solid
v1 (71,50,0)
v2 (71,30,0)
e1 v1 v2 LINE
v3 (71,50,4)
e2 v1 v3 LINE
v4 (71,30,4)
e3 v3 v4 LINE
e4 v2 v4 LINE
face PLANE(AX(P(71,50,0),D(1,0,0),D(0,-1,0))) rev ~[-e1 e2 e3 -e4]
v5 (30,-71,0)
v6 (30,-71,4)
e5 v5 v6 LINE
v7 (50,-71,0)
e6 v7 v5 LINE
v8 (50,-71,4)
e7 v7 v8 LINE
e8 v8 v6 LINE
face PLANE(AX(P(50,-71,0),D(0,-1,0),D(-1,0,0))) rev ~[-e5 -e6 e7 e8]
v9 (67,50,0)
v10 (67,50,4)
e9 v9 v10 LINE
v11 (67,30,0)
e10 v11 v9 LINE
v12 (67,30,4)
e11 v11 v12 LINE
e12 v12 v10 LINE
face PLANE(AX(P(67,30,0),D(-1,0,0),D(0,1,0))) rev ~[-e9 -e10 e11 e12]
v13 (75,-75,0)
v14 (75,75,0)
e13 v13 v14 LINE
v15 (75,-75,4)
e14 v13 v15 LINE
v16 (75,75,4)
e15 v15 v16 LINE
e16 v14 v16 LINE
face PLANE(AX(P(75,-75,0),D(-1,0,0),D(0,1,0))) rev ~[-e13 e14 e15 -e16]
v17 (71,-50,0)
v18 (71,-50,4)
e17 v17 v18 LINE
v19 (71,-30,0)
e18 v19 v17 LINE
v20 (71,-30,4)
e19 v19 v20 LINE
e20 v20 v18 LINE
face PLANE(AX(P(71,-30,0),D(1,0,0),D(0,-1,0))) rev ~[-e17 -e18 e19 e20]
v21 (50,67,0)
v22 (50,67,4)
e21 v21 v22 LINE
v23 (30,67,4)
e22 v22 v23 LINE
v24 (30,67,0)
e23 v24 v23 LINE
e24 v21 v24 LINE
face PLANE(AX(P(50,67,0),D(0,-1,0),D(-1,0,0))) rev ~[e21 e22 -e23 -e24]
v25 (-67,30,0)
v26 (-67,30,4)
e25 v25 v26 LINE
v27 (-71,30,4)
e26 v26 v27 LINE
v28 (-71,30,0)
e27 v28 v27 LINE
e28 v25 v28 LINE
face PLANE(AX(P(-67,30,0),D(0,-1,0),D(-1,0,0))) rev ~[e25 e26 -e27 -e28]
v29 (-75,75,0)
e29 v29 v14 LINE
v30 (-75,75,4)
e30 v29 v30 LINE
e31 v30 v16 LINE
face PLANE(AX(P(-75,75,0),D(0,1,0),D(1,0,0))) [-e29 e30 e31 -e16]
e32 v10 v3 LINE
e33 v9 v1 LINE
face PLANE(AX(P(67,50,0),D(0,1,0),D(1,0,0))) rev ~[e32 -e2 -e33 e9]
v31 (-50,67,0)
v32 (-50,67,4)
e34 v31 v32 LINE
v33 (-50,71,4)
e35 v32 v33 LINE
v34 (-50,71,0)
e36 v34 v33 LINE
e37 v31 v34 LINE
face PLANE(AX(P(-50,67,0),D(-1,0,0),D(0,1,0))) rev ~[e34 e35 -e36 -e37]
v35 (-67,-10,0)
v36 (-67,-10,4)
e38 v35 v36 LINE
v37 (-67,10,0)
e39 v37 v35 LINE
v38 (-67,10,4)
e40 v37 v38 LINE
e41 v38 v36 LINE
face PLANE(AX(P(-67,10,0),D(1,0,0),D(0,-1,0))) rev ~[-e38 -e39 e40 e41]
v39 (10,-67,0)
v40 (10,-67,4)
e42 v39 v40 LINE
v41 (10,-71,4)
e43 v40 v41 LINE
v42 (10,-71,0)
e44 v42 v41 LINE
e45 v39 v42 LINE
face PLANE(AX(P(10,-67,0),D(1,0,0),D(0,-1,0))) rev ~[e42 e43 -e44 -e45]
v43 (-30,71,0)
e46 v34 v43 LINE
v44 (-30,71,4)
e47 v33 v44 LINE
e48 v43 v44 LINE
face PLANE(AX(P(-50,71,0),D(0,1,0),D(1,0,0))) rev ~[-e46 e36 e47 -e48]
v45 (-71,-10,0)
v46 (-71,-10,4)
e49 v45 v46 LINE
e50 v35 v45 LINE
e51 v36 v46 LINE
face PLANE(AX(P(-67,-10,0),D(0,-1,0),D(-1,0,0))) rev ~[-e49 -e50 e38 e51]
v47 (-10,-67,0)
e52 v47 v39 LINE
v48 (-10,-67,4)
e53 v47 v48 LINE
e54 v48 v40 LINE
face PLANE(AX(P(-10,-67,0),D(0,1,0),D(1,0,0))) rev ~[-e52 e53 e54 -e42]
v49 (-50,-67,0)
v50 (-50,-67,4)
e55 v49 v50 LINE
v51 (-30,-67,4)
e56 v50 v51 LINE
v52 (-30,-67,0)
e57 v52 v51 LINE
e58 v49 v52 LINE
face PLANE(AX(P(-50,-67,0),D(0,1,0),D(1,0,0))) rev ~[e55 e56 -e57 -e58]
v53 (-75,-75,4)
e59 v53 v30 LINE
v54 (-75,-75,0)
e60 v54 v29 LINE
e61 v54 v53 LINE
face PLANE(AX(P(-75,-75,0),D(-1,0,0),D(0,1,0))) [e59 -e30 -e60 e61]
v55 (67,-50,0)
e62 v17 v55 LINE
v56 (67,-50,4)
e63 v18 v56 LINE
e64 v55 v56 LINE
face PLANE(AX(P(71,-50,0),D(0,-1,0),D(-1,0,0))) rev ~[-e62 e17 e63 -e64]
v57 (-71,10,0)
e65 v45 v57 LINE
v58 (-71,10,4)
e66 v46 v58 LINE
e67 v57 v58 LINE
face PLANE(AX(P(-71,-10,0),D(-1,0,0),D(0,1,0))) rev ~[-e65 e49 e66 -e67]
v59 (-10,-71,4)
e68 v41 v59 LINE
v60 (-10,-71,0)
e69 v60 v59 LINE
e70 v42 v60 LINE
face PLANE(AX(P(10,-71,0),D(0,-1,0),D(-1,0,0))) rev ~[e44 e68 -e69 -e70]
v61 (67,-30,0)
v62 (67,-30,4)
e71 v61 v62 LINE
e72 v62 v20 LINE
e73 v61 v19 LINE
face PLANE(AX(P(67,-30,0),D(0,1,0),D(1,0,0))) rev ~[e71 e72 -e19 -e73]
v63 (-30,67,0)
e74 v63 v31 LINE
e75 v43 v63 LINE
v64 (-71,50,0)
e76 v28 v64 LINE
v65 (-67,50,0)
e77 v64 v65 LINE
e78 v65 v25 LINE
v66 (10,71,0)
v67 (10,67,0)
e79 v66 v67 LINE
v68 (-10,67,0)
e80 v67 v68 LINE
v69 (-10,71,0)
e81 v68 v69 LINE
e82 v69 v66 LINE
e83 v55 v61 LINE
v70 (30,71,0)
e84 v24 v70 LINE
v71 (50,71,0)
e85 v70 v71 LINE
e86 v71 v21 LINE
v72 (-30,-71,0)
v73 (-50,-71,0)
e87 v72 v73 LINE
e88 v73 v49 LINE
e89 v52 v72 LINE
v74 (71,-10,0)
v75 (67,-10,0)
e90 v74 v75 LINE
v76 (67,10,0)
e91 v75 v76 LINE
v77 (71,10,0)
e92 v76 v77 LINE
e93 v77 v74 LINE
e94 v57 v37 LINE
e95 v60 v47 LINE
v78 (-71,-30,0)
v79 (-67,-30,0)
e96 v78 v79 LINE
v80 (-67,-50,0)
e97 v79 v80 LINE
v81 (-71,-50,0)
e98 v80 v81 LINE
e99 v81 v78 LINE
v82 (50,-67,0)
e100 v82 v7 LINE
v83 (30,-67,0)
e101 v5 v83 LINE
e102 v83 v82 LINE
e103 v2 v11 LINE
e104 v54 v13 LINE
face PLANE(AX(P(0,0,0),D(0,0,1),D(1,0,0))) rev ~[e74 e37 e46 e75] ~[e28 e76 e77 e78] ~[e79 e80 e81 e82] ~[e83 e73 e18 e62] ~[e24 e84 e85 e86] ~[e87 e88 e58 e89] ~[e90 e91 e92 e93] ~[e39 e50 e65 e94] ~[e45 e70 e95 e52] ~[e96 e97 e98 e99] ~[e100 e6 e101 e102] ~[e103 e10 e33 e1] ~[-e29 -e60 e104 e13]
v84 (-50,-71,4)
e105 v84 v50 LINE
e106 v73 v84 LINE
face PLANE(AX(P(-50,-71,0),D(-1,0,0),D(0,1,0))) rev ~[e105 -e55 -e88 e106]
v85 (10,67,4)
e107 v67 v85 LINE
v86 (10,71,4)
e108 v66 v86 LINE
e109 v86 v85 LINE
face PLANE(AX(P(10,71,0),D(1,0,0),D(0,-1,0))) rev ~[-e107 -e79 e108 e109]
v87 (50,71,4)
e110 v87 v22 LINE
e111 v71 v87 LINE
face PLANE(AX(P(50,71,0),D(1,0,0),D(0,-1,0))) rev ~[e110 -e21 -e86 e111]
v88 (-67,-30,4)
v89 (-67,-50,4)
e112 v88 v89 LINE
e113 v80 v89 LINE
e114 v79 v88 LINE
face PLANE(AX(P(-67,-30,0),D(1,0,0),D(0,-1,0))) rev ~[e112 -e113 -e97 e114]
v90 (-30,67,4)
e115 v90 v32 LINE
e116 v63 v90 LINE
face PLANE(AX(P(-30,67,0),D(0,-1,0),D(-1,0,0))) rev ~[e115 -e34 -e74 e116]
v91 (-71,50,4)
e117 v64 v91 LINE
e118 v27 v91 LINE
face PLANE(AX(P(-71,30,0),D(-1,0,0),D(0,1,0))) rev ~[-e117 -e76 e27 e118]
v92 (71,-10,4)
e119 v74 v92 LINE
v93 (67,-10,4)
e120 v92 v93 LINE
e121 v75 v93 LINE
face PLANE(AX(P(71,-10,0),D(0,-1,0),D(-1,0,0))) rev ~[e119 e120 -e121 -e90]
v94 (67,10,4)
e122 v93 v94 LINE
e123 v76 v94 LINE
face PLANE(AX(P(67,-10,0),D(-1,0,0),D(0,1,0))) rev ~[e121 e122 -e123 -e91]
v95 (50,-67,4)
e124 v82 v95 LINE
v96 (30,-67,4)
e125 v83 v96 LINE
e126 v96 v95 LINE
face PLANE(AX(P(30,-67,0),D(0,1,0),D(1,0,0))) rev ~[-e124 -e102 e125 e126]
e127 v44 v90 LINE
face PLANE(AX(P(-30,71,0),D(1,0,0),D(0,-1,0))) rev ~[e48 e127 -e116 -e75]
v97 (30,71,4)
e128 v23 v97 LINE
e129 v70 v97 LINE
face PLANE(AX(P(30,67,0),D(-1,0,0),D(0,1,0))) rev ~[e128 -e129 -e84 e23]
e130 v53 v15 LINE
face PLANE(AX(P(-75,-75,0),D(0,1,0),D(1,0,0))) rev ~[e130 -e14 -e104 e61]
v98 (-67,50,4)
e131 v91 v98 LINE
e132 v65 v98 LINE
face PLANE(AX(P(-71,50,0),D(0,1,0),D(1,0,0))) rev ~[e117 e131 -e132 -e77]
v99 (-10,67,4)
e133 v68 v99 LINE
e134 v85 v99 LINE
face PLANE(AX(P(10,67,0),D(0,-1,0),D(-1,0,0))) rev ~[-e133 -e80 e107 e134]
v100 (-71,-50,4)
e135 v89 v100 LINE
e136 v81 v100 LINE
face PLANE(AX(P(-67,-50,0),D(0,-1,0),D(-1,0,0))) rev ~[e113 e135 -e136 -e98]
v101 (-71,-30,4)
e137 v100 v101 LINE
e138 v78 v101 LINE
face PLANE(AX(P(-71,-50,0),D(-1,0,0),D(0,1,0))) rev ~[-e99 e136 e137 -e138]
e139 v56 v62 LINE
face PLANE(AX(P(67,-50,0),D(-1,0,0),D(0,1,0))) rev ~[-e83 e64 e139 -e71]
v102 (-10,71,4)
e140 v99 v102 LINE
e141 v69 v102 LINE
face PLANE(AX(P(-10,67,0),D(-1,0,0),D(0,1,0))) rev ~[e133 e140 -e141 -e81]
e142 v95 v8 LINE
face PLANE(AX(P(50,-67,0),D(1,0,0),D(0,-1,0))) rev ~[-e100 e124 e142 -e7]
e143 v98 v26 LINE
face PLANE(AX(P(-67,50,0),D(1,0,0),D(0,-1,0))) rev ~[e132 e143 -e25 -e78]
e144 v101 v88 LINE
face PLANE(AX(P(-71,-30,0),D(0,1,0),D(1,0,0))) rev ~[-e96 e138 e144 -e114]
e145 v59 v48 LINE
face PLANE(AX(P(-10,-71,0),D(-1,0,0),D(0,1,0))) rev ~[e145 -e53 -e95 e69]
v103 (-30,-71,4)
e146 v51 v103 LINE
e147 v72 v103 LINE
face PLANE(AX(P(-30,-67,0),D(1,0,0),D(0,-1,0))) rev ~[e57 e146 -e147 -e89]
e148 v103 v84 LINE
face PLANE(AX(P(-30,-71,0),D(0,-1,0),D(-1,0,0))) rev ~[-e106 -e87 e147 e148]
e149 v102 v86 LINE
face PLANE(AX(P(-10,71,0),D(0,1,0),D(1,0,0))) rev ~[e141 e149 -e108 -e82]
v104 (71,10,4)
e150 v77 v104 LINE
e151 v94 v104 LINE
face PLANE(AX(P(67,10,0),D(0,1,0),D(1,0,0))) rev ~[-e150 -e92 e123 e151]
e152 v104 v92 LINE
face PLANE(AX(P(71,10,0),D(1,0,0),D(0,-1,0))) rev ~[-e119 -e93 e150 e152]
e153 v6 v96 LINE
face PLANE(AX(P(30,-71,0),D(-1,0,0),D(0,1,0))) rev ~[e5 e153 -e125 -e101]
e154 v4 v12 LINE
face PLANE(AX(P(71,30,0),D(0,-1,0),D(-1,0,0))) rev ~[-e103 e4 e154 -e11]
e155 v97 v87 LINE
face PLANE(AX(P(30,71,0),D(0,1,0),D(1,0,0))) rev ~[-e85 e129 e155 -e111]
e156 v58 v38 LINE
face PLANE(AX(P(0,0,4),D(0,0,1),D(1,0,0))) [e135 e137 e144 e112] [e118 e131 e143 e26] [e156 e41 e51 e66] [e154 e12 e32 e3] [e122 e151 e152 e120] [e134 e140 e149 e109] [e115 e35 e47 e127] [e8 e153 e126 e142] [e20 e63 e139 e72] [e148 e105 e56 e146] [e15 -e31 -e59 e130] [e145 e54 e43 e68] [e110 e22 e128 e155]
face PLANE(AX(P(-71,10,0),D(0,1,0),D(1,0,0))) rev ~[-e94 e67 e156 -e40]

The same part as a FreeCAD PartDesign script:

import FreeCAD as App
import Part
import Sketcher
from FreeCAD import Vector
Q = App.Units.Quantity

doc = App.newDocument("Part")
body = doc.addObject("PartDesign::Body", "Body")

sketch1 = body.newObject("Sketcher::SketchObject", "Sketch")
sketch1.AttachmentSupport = (doc.getObject("XY_Plane"), [""])
sketch1.MapMode = "FlatFace"
sketch1.addGeometry(Part.LineSegment(Vector(-75, 75, 0), Vector(-75, -75, 0)), False)
sketch1.addGeometry(Part.LineSegment(Vector(-75, -75, 0), Vector(75, -75, 0)), False)
sketch1.addGeometry(Part.LineSegment(Vector(75, -75, 0), Vector(75, 75, 0)), False)
sketch1.addGeometry(Part.LineSegment(Vector(75, 75, 0), Vector(-75, 75, 0)), False)
sketch1.addGeometry(Part.LineSegment(Vector(-30, -67, 0), Vector(-30, -71, 0)), False)
sketch1.addGeometry(Part.LineSegment(Vector(-30, -71, 0), Vector(-50, -71, 0)), False)
sketch1.addGeometry(Part.LineSegment(Vector(-50, -71, 0), Vector(-50, -67, 0)), False)
sketch1.addGeometry(Part.LineSegment(Vector(-50, -67, 0), Vector(-30, -67, 0)), False)
sketch1.addGeometry(Part.LineSegment(Vector(-71, -50, 0), Vector(-71, -30, 0)), False)
sketch1.addGeometry(Part.LineSegment(Vector(-71, -30, 0), Vector(-67, -30, 0)), False)
sketch1.addGeometry(Part.LineSegment(Vector(-67, -30, 0), Vector(-67, -50, 0)), False)
sketch1.addGeometry(Part.LineSegment(Vector(-67, -50, 0), Vector(-71, -50, 0)), False)
sketch1.addGeometry(Part.LineSegment(Vector(10, -71, 0), Vector(-10, -71, 0)), False)
sketch1.addGeometry(Part.LineSegment(Vector(-10, -71, 0), Vector(-10, -67, 0)), False)
sketch1.addGeometry(Part.LineSegment(Vector(-10, -67, 0), Vector(10, -67, 0)), False)
sketch1.addGeometry(Part.LineSegment(Vector(10, -67, 0), Vector(10, -71, 0)), False)
sketch1.addGeometry(Part.LineSegment(Vector(50, -67, 0), Vector(50, -71, 0)), False)
sketch1.addGeometry(Part.LineSegment(Vector(50, -71, 0), Vector(30, -71, 0)), False)
sketch1.addGeometry(Part.LineSegment(Vector(30, -71, 0), Vector(30, -67, 0)), False)
sketch1.addGeometry(Part.LineSegment(Vector(30, -67, 0), Vector(50, -67, 0)), False)
sketch1.addGeometry(Part.LineSegment(Vector(71, -30, 0), Vector(71, -50, 0)), False)
sketch1.addGeometry(Part.LineSegment(Vector(71, -50, 0), Vector(67, -50, 0)), False)
sketch1.addGeometry(Part.LineSegment(Vector(67, -50, 0), Vector(67, -30, 0)), False)
sketch1.addGeometry(Part.LineSegment(Vector(67, -30, 0), Vector(71, -30, 0)), False)
sketch1.addGeometry(Part.LineSegment(Vector(-67, -10, 0), Vector(-71, -10, 0)), False)
sketch1.addGeometry(Part.LineSegment(Vector(-71, -10, 0), Vector(-71, 10, 0)), False)
sketch1.addGeometry(Part.LineSegment(Vector(-71, 10, 0), Vector(-67, 10, 0)), False)
sketch1.addGeometry(Part.LineSegment(Vector(-67, 10, 0), Vector(-67, -10, 0)), False)
sketch1.addGeometry(Part.LineSegment(Vector(-71, 30, 0), Vector(-71, 50, 0)), False)
sketch1.addGeometry(Part.LineSegment(Vector(-71, 50, 0), Vector(-67, 50, 0)), False)
sketch1.addGeometry(Part.LineSegment(Vector(-67, 50, 0), Vector(-67, 30, 0)), False)
sketch1.addGeometry(Part.LineSegment(Vector(-67, 30, 0), Vector(-71, 30, 0)), False)
sketch1.addGeometry(Part.LineSegment(Vector(-50, 71, 0), Vector(-30, 71, 0)), False)
sketch1.addGeometry(Part.LineSegment(Vector(-30, 71, 0), Vector(-30, 67, 0)), False)
sketch1.addGeometry(Part.LineSegment(Vector(-30, 67, 0), Vector(-50, 67, 0)), False)
sketch1.addGeometry(Part.LineSegment(Vector(-50, 67, 0), Vector(-50, 71, 0)), False)
sketch1.addGeometry(Part.LineSegment(Vector(71, 10, 0), Vector(71, -10, 0)), False)
sketch1.addGeometry(Part.LineSegment(Vector(71, -10, 0), Vector(67, -10, 0)), False)
sketch1.addGeometry(Part.LineSegment(Vector(67, -10, 0), Vector(67, 10, 0)), False)
sketch1.addGeometry(Part.LineSegment(Vector(67, 10, 0), Vector(71, 10, 0)), False)
sketch1.addGeometry(Part.LineSegment(Vector(-10, 67, 0), Vector(-10, 71, 0)), False)
sketch1.addGeometry(Part.LineSegment(Vector(-10, 71, 0), Vector(10, 71, 0)), False)
sketch1.addGeometry(Part.LineSegment(Vector(10, 71, 0), Vector(10, 67, 0)), False)
sketch1.addGeometry(Part.LineSegment(Vector(10, 67, 0), Vector(-10, 67, 0)), False)
sketch1.addGeometry(Part.LineSegment(Vector(71, 50, 0), Vector(71, 30, 0)), False)
sketch1.addGeometry(Part.LineSegment(Vector(71, 30, 0), Vector(67, 30, 0)), False)
sketch1.addGeometry(Part.LineSegment(Vector(67, 30, 0), Vector(67, 50, 0)), False)
sketch1.addGeometry(Part.LineSegment(Vector(67, 50, 0), Vector(71, 50, 0)), False)
sketch1.addGeometry(Part.LineSegment(Vector(30, 67, 0), Vector(30, 71, 0)), False)
sketch1.addGeometry(Part.LineSegment(Vector(30, 71, 0), Vector(50, 71, 0)), False)
sketch1.addGeometry(Part.LineSegment(Vector(50, 71, 0), Vector(50, 67, 0)), False)
sketch1.addGeometry(Part.LineSegment(Vector(50, 67, 0), Vector(30, 67, 0)), False)
sketch1.addConstraint(Sketcher.Constraint("Coincident", 0, 2, 1, 1))
sketch1.addConstraint(Sketcher.Constraint("Coincident", 1, 2, 2, 1))
sketch1.addConstraint(Sketcher.Constraint("Coincident", 2, 2, 3, 1))
sketch1.addConstraint(Sketcher.Constraint("Coincident", 3, 2, 0, 1))
sketch1.addConstraint(Sketcher.Constraint("Coincident", 4, 2, 5, 1))
sketch1.addConstraint(Sketcher.Constraint("Coincident", 5, 2, 6, 1))
sketch1.addConstraint(Sketcher.Constraint("Coincident", 6, 2, 7, 1))
sketch1.addConstraint(Sketcher.Constraint("Coincident", 7, 2, 4, 1))
sketch1.addConstraint(Sketcher.Constraint("Coincident", 8, 2, 9, 1))
sketch1.addConstraint(Sketcher.Constraint("Coincident", 9, 2, 10, 1))
sketch1.addConstraint(Sketcher.Constraint("Coincident", 10, 2, 11, 1))
sketch1.addConstraint(Sketcher.Constraint("Coincident", 11, 2, 8, 1))
sketch1.addConstraint(Sketcher.Constraint("Coincident", 12, 2, 13, 1))
sketch1.addConstraint(Sketcher.Constraint("Coincident", 13, 2, 14, 1))
sketch1.addConstraint(Sketcher.Constraint("Coincident", 14, 2, 15, 1))
sketch1.addConstraint(Sketcher.Constraint("Coincident", 15, 2, 12, 1))
sketch1.addConstraint(Sketcher.Constraint("Coincident", 16, 2, 17, 1))
sketch1.addConstraint(Sketcher.Constraint("Coincident", 17, 2, 18, 1))
sketch1.addConstraint(Sketcher.Constraint("Coincident", 18, 2, 19, 1))
sketch1.addConstraint(Sketcher.Constraint("Coincident", 19, 2, 16, 1))
sketch1.addConstraint(Sketcher.Constraint("Coincident", 20, 2, 21, 1))
sketch1.addConstraint(Sketcher.Constraint("Coincident", 21, 2, 22, 1))
sketch1.addConstraint(Sketcher.Constraint("Coincident", 22, 2, 23, 1))
sketch1.addConstraint(Sketcher.Constraint("Coincident", 23, 2, 20, 1))
sketch1.addConstraint(Sketcher.Constraint("Coincident", 24, 2, 25, 1))
sketch1.addConstraint(Sketcher.Constraint("Coincident", 25, 2, 26, 1))
sketch1.addConstraint(Sketcher.Constraint("Coincident", 26, 2, 27, 1))
sketch1.addConstraint(Sketcher.Constraint("Coincident", 27, 2, 24, 1))
sketch1.addConstraint(Sketcher.Constraint("Coincident", 28, 2, 29, 1))
sketch1.addConstraint(Sketcher.Constraint("Coincident", 29, 2, 30, 1))
sketch1.addConstraint(Sketcher.Constraint("Coincident", 30, 2, 31, 1))
sketch1.addConstraint(Sketcher.Constraint("Coincident", 31, 2, 28, 1))
sketch1.addConstraint(Sketcher.Constraint("Coincident", 32, 2, 33, 1))
sketch1.addConstraint(Sketcher.Constraint("Coincident", 33, 2, 34, 1))
sketch1.addConstraint(Sketcher.Constraint("Coincident", 34, 2, 35, 1))
sketch1.addConstraint(Sketcher.Constraint("Coincident", 35, 2, 32, 1))
sketch1.addConstraint(Sketcher.Constraint("Coincident", 36, 2, 37, 1))
sketch1.addConstraint(Sketcher.Constraint("Coincident", 37, 2, 38, 1))
sketch1.addConstraint(Sketcher.Constraint("Coincident", 38, 2, 39, 1))
sketch1.addConstraint(Sketcher.Constraint("Coincident", 39, 2, 36, 1))
sketch1.addConstraint(Sketcher.Constraint("Coincident", 40, 2, 41, 1))
sketch1.addConstraint(Sketcher.Constraint("Coincident", 41, 2, 42, 1))
sketch1.addConstraint(Sketcher.Constraint("Coincident", 42, 2, 43, 1))
sketch1.addConstraint(Sketcher.Constraint("Coincident", 43, 2, 40, 1))
sketch1.addConstraint(Sketcher.Constraint("Coincident", 44, 2, 45, 1))
sketch1.addConstraint(Sketcher.Constraint("Coincident", 45, 2, 46, 1))
sketch1.addConstraint(Sketcher.Constraint("Coincident", 46, 2, 47, 1))
sketch1.addConstraint(Sketcher.Constraint("Coincident", 47, 2, 44, 1))
sketch1.addConstraint(Sketcher.Constraint("Coincident", 48, 2, 49, 1))
sketch1.addConstraint(Sketcher.Constraint("Coincident", 49, 2, 50, 1))
sketch1.addConstraint(Sketcher.Constraint("Coincident", 50, 2, 51, 1))
sketch1.addConstraint(Sketcher.Constraint("Coincident", 51, 2, 48, 1))
sketch1.addConstraint(Sketcher.Constraint("Vertical", 0))
sketch1.addConstraint(Sketcher.Constraint("Horizontal", 1))
sketch1.addConstraint(Sketcher.Constraint("Vertical", 2))
sketch1.addConstraint(Sketcher.Constraint("Horizontal", 3))
sketch1.addConstraint(Sketcher.Constraint("Vertical", 4))
sketch1.addConstraint(Sketcher.Constraint("Horizontal", 5))
sketch1.addConstraint(Sketcher.Constraint("Vertical", 6))
sketch1.addConstraint(Sketcher.Constraint("Horizontal", 7))
sketch1.addConstraint(Sketcher.Constraint("Vertical", 8))
sketch1.addConstraint(Sketcher.Constraint("Horizontal", 9))
sketch1.addConstraint(Sketcher.Constraint("Vertical", 10))
sketch1.addConstraint(Sketcher.Constraint("Horizontal", 11))
sketch1.addConstraint(Sketcher.Constraint("Horizontal", 12))
sketch1.addConstraint(Sketcher.Constraint("Vertical", 13))
sketch1.addConstraint(Sketcher.Constraint("Horizontal", 14))
sketch1.addConstraint(Sketcher.Constraint("Vertical", 15))
sketch1.addConstraint(Sketcher.Constraint("Vertical", 16))
sketch1.addConstraint(Sketcher.Constraint("Horizontal", 17))
sketch1.addConstraint(Sketcher.Constraint("Vertical", 18))
sketch1.addConstraint(Sketcher.Constraint("Horizontal", 19))
sketch1.addConstraint(Sketcher.Constraint("Vertical", 20))
sketch1.addConstraint(Sketcher.Constraint("Horizontal", 21))
sketch1.addConstraint(Sketcher.Constraint("Vertical", 22))
sketch1.addConstraint(Sketcher.Constraint("Horizontal", 23))
sketch1.addConstraint(Sketcher.Constraint("Horizontal", 24))
sketch1.addConstraint(Sketcher.Constraint("Vertical", 25))
sketch1.addConstraint(Sketcher.Constraint("Horizontal", 26))
sketch1.addConstraint(Sketcher.Constraint("Vertical", 27))
sketch1.addConstraint(Sketcher.Constraint("Vertical", 28))
sketch1.addConstraint(Sketcher.Constraint("Horizontal", 29))
sketch1.addConstraint(Sketcher.Constraint("Vertical", 30))
sketch1.addConstraint(Sketcher.Constraint("Horizontal", 31))
sketch1.addConstraint(Sketcher.Constraint("Horizontal", 32))
sketch1.addConstraint(Sketcher.Constraint("Vertical", 33))
sketch1.addConstraint(Sketcher.Constraint("Horizontal", 34))
sketch1.addConstraint(Sketcher.Constraint("Vertical", 35))
sketch1.addConstraint(Sketcher.Constraint("Vertical", 36))
sketch1.addConstraint(Sketcher.Constraint("Horizontal", 37))
sketch1.addConstraint(Sketcher.Constraint("Vertical", 38))
sketch1.addConstraint(Sketcher.Constraint("Horizontal", 39))
sketch1.addConstraint(Sketcher.Constraint("Vertical", 40))
sketch1.addConstraint(Sketcher.Constraint("Horizontal", 41))
sketch1.addConstraint(Sketcher.Constraint("Vertical", 42))
sketch1.addConstraint(Sketcher.Constraint("Horizontal", 43))
sketch1.addConstraint(Sketcher.Constraint("Vertical", 44))
sketch1.addConstraint(Sketcher.Constraint("Horizontal", 45))
sketch1.addConstraint(Sketcher.Constraint("Vertical", 46))
sketch1.addConstraint(Sketcher.Constraint("Horizontal", 47))
sketch1.addConstraint(Sketcher.Constraint("Vertical", 48))
sketch1.addConstraint(Sketcher.Constraint("Horizontal", 49))
sketch1.addConstraint(Sketcher.Constraint("Vertical", 50))
sketch1.addConstraint(Sketcher.Constraint("Horizontal", 51))
sketch1.addConstraint(Sketcher.Constraint("Symmetric", 0, 2, 2, 2, -1, 1))
sketch1.addConstraint(Sketcher.Constraint("Symmetric", 20, 2, 28, 2, -1, 1))
sketch1.addConstraint(Sketcher.Constraint("Symmetric", 22, 2, 30, 2, -1, 1))
sketch1.addConstraint(Sketcher.Constraint("Symmetric", 17, 2, 32, 2, -1, 1))
sketch1.addConstraint(Sketcher.Constraint("Symmetric", 19, 2, 34, 2, -1, 1))
sketch1.addConstraint(Sketcher.Constraint("Symmetric", 25, 2, 36, 2, -1, 1))
sketch1.addConstraint(Sketcher.Constraint("Symmetric", 27, 2, 38, 2, -1, 1))
sketch1.addConstraint(Sketcher.Constraint("Symmetric", 15, 2, 40, 2, -1, 1))
sketch1.addConstraint(Sketcher.Constraint("Symmetric", 13, 2, 42, 2, -1, 1))
sketch1.addConstraint(Sketcher.Constraint("Symmetric", 8, 2, 44, 2, -1, 1))
sketch1.addConstraint(Sketcher.Constraint("Symmetric", 10, 2, 46, 2, -1, 1))
sketch1.addConstraint(Sketcher.Constraint("Symmetric", 4, 2, 48, 2, -1, 1))
sketch1.addConstraint(Sketcher.Constraint("Symmetric", 6, 2, 50, 2, -1, 1))
sketch1.addConstraint(Sketcher.Constraint("Symmetric", 5, 2, 16, 2, -2))
sketch1.addConstraint(Sketcher.Constraint("Symmetric", 7, 2, 18, 2, -2))
sketch1.addConstraint(Sketcher.Constraint("Symmetric", 11, 2, 20, 2, -2))
sketch1.addConstraint(Sketcher.Constraint("Symmetric", 9, 2, 22, 2, -2))
sketch1.addConstraint(Sketcher.Constraint("Horizontal", 5, 2, 12, 2))
sketch1.addConstraint(Sketcher.Constraint("Horizontal", 7, 2, 13, 2))
sketch1.addConstraint(Sketcher.Constraint("Horizontal", 27, 2, 36, 2))
sketch1.addConstraint(Sketcher.Constraint("Vertical", 11, 2, 24, 2))
sketch1.addConstraint(Sketcher.Constraint("Vertical", 10, 2, 26, 2))
sketch1.addConstraint(Sketcher.Constraint("Vertical", 13, 2, 40, 2))
sketch1.addConstraint(Sketcher.Constraint("Equal", 7, 12))
sketch1.addConstraint(Sketcher.Constraint("Equal", 3, 0))
sketch1.addConstraint(Sketcher.Constraint("Equal", 47, 4))
sketch1.addConstraint(Sketcher.Constraint("Equal", 51, 8))
sketch1.addConstraint(Sketcher.Constraint("Equal", 22, 25))
sketch1.addConstraint(Sketcher.Constraint("DistanceX", 1, 1, 1, 2, Q("150 mm")))
sketch1.addConstraint(Sketcher.Constraint("DistanceX", 5, 2, 5, 1, Q("20 mm")))
sketch1.addConstraint(Sketcher.Constraint("DistanceX", 9, 1, 9, 2, Q("4 mm")))
sketch1.addConstraint(Sketcher.Constraint("DistanceX", 4, 2, -1, 1, Q("30 mm")))
sketch1.addConstraint(Sketcher.Constraint("DistanceY", 4, 2, -1, 1, Q("71 mm")))
sketch1.addConstraint(Sketcher.Constraint("DistanceX", 8, 2, -1, 1, Q("71 mm")))
sketch1.addConstraint(Sketcher.Constraint("DistanceY", 8, 2, -1, 1, Q("30 mm")))
pad1 = body.newObject("PartDesign::Pad", "Pad")
pad1.Profile = sketch1
pad1.Length = 4

doc.recompute()
